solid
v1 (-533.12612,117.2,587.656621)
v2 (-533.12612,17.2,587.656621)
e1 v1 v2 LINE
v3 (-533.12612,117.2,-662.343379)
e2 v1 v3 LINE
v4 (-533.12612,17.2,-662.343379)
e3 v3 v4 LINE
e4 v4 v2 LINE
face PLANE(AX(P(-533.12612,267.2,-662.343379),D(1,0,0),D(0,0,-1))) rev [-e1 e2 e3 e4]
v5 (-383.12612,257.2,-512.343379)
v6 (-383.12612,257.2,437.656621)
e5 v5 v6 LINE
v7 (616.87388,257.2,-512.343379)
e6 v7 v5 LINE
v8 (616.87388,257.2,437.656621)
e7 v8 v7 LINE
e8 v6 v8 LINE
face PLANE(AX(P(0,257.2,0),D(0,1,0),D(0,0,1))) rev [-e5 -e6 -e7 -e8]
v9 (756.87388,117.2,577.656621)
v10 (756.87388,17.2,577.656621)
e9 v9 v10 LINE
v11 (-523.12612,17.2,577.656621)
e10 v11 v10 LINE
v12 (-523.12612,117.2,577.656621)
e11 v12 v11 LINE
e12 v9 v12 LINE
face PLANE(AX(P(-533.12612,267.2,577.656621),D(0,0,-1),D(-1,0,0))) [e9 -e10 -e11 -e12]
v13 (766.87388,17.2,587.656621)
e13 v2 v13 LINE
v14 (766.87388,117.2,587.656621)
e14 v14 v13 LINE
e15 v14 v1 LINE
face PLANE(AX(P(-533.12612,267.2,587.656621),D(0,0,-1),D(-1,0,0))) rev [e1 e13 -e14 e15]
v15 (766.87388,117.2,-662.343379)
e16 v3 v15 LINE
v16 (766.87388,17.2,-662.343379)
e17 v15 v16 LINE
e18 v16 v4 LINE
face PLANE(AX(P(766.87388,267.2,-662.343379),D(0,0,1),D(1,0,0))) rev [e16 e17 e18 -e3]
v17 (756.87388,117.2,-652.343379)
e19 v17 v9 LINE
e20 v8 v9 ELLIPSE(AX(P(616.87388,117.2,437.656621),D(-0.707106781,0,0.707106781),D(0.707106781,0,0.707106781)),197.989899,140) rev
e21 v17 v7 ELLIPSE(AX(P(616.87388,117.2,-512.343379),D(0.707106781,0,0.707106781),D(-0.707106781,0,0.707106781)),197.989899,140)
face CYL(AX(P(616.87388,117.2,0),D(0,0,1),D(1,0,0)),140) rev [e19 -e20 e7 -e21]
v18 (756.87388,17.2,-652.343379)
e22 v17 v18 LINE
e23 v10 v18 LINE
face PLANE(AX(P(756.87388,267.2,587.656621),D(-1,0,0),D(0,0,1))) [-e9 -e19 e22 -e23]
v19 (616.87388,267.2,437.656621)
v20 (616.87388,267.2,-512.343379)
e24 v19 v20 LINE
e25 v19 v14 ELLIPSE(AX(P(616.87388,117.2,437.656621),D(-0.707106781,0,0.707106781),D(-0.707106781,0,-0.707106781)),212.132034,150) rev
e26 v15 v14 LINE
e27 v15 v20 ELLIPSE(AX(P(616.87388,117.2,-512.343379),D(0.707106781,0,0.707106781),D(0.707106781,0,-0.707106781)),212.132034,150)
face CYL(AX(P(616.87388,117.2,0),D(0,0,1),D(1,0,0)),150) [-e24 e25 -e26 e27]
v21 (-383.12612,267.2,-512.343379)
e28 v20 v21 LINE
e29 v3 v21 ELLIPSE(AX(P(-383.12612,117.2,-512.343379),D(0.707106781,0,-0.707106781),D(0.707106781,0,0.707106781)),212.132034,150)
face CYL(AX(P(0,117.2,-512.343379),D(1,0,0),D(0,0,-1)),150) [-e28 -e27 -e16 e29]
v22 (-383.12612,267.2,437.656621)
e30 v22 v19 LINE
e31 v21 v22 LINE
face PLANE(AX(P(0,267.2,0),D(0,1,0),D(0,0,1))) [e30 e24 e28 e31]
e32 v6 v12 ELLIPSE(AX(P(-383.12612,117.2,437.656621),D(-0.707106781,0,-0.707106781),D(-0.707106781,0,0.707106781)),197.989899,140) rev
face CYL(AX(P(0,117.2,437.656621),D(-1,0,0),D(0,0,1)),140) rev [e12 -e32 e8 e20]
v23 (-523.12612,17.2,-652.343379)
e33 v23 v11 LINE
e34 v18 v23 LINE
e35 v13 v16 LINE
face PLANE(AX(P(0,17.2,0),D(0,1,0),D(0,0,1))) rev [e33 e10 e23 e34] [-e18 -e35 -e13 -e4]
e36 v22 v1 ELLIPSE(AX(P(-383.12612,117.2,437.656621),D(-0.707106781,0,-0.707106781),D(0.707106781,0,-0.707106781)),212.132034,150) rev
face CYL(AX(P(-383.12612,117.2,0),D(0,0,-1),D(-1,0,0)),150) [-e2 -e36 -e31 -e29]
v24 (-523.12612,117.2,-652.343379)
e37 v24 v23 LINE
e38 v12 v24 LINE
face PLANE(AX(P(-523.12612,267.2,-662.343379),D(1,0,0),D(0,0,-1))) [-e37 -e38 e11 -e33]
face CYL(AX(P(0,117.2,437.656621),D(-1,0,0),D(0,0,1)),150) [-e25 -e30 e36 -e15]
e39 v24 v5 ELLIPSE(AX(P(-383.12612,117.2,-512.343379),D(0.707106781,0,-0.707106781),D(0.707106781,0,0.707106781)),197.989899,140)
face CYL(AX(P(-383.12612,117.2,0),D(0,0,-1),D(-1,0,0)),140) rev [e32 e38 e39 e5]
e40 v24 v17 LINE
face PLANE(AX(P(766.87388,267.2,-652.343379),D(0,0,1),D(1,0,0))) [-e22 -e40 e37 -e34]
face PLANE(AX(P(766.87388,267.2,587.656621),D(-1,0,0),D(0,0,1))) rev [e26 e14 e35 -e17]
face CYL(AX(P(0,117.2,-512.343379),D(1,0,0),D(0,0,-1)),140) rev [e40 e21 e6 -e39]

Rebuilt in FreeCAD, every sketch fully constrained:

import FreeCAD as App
import Part
import Sketcher
from FreeCAD import Vector
Q = App.Units.Quantity


def edges_at(feature, points):
    """Names of the edges that pass closest to the given points."""
    edges = feature.Shape.Edges
    near = lambda p: min(range(len(edges)), key=lambda i: edges[i].distToShape(Part.Vertex(*p))[0])
    return sorted({f"Edge{near(p) + 1}" for p in points})


def faces_at(feature, points):
    """Names of the faces that lie closest to the given points."""
    faces = feature.Shape.Faces
    near = lambda p: min(range(len(faces)), key=lambda i: faces[i].distToShape(Part.Vertex(*p))[0])
    return sorted({f"Face{near(p) + 1}" for p in points})


def add_polygon(sketch, points):
    """Adds a closed chain of lines whose ends are joined by coincident constraints."""
    first, n = sketch.GeometryCount, len(points)
    for a, b in zip(points, points[1:] + points[:1]):
        sketch.addGeometry(Part.LineSegment(App.Vector(*a, 0), App.Vector(*b, 0)), False)
    for i in range(n):
        sketch.addConstraint(Sketcher.Constraint("Coincident", first + i, 2, first + (i + 1) % n, 1))

doc = App.newDocument("Part")
body = doc.addObject("PartDesign::Body", "Body")

# Sketch on XZ plane
sketch1 = body.newObject("Sketcher::SketchObject", "Sketch")
sketch1.AttachmentSupport = (doc.getObject("XZ_Plane"), [""])
sketch1.MapMode = "FlatFace"
sketch1.AttachmentOffset = App.Placement(Vector(0, 0, -17.2), App.Rotation())
add_polygon(sketch1, [(-533.12612, -662.343379), (-533.12612, 587.656621), (766.87388, 587.656621), (766.87388, -662.343379)])  # lines 0-3
sketch1.addConstraint(Sketcher.Constraint("Vertical", 0))
sketch1.addConstraint(Sketcher.Constraint("Horizontal", 1))
sketch1.addConstraint(Sketcher.Constraint("Vertical", 2))
sketch1.addConstraint(Sketcher.Constraint("Horizontal", 3))
sketch1.addConstraint(Sketcher.Constraint("DistanceX", 1, 1, 1, 2, Q("1300 mm")))
sketch1.addConstraint(Sketcher.Constraint("DistanceY", 0, 1, 0, 2, Q("1250 mm")))
sketch1.addConstraint(Sketcher.Constraint("DistanceX", 0, 2, -1, 1, Q("533.12612 mm")))
sketch1.addConstraint(Sketcher.Constraint("DistanceY", -1, 1, 0, 2, Q("587.656621 mm")))
pad1 = body.newObject("PartDesign::Pad", "Pad")
pad1.Profile = sketch1
pad1.Length = 250
pad1.Reversed = True
doc.recompute()

fillet = body.newObject("PartDesign::Fillet", "Fillet")
fillet.Base = (pad1, edges_at(pad1, [
    (116.874, 267.2, 587.657),
    (766.874, 267.2, -37.343),
    (116.874, 267.2, -662.343),
    (-533.126, 267.2, -37.343),
]))
fillet.Radius = 150
doc.recompute()

thickness = body.newObject("PartDesign::Thickness", "Thickness")
thickness.Base = (fillet, faces_at(fillet, [(116.874, 17.2, -37.343)]))
thickness.Value = 10
thickness.Reversed = True
thickness.Join = "Arc"

doc.recompute()
